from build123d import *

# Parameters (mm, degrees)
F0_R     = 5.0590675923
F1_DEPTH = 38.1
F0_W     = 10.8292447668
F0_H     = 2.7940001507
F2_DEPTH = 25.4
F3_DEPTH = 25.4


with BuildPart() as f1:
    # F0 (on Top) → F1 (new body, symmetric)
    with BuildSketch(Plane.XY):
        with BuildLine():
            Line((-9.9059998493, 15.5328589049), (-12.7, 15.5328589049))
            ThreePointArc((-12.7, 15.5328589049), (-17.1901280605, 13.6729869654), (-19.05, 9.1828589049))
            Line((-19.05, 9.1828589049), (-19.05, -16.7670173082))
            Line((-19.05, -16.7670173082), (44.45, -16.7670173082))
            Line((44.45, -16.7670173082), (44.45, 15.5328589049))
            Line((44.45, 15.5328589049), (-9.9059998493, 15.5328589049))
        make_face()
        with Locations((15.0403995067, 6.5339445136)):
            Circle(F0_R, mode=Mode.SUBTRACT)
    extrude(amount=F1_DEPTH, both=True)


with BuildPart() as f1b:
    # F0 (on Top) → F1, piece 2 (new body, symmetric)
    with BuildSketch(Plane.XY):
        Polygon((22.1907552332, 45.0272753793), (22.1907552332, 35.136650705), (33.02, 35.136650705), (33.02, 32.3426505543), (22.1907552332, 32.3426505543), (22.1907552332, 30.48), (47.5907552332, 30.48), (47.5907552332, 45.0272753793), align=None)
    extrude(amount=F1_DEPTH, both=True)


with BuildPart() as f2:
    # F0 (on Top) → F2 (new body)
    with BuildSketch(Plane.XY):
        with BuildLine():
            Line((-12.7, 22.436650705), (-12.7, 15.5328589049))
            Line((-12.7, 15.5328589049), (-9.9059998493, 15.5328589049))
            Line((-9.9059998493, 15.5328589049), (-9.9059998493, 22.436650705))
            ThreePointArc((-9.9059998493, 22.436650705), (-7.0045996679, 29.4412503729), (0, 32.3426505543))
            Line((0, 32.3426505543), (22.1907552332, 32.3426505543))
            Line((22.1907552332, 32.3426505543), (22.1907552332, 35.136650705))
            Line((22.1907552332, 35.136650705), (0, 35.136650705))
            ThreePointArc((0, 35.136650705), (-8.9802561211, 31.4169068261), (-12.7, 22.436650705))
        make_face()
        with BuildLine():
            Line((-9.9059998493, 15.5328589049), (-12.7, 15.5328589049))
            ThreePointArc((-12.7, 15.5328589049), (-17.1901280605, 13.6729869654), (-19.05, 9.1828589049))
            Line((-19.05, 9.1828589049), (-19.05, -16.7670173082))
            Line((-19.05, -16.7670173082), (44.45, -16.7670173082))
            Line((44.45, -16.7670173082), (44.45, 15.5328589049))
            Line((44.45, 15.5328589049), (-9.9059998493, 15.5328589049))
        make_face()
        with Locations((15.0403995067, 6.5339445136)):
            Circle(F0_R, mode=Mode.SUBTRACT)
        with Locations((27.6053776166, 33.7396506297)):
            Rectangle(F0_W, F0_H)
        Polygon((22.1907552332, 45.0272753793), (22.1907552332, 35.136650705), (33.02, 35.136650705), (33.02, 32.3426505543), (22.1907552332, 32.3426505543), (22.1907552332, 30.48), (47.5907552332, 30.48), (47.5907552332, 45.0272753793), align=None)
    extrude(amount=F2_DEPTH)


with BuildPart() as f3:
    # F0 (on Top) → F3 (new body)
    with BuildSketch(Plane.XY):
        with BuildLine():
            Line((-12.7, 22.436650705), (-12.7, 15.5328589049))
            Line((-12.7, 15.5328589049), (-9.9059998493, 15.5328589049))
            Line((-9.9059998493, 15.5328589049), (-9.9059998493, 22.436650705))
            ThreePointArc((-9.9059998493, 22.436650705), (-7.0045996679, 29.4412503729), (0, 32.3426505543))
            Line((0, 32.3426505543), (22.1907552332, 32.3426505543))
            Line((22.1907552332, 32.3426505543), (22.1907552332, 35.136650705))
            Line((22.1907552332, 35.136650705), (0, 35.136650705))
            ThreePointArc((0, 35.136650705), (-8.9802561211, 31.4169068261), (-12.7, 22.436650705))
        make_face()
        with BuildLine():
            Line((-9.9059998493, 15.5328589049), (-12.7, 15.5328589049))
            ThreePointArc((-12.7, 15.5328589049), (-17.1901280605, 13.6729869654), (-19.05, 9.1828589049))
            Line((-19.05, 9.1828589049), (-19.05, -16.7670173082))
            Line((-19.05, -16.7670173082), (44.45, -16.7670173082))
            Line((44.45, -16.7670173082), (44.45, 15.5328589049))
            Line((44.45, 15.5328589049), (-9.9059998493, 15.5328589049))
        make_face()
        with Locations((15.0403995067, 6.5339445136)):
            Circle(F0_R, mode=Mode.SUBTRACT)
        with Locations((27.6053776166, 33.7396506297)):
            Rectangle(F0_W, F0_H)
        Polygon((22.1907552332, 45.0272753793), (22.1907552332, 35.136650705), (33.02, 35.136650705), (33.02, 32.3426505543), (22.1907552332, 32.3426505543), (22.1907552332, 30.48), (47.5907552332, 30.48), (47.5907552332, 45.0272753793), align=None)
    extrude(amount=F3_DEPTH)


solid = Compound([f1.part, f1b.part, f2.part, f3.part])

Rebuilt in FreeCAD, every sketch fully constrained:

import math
import FreeCAD as App
import Part
import Sketcher

V = App.Vector
Q = App.Units.Quantity


def add_polygon(sketch, points):
    """Adds a closed chain of lines whose ends are joined by coincident constraints."""
    first, n = sketch.GeometryCount, len(points)
    for a, b in zip(points, points[1:] + points[:1]):
        sketch.addGeometry(Part.LineSegment(App.Vector(*a, 0), App.Vector(*b, 0)), False)
    for i in range(n):
        sketch.addConstraint(Sketcher.Constraint("Coincident", first + i, 2, first + (i + 1) % n, 1))

doc = App.newDocument("Part")
body = doc.addObject("PartDesign::Body", "Body")

# Sketch on XY plane
sketch1 = doc.addObject("Sketcher::SketchObject", "Sketch")
body.addObject(sketch1)
sketch1.AttachmentSupport = (doc.XY_Plane, [""])
sketch1.MapMode = "FlatFace"
sketch1.addGeometry(Part.ArcOfCircle(Part.Circle(V(-13, 9, 0), V(0, 0, 1), 6), math.radians(90), math.radians(180)), False)
sketch1.addGeometry(Part.LineSegment(V(-19, 9, 0), V(-19, -17, 0)), False)
sketch1.addGeometry(Part.LineSegment(V(-19, -17, 0), V(44, -17, 0)), False)
sketch1.addGeometry(Part.LineSegment(V(44, -17, 0), V(44, 16, 0)), False)
sketch1.addGeometry(Part.LineSegment(V(44, 16, 0), V(-13, 16, 0)), False)
sketch1.addGeometry(Part.Circle(V(15, 7, 0), V(0, 0, 1), 5), False)
sketch1.addConstraint(Sketcher.Constraint("Tangent", 0, 2, 1, 1))
sketch1.addConstraint(Sketcher.Constraint("Coincident", 1, 2, 2, 1))
sketch1.addConstraint(Sketcher.Constraint("Coincident", 2, 2, 3, 1))
sketch1.addConstraint(Sketcher.Constraint("Coincident", 3, 2, 4, 1))
sketch1.addConstraint(Sketcher.Constraint("Tangent", 4, 2, 0, 1))
sketch1.addConstraint(Sketcher.Constraint("Vertical", 1))
sketch1.addConstraint(Sketcher.Constraint("Horizontal", 2))
sketch1.addConstraint(Sketcher.Constraint("Vertical", 3))
sketch1.addConstraint(Sketcher.Constraint("Horizontal", 4))
sketch1.addConstraint(Sketcher.Constraint("Radius", 0, Q("0.25 in")))
sketch1.addConstraint(Sketcher.Constraint("DistanceX", 2, 1, 2, 2, Q("2.5 in")))
sketch1.addConstraint(Sketcher.Constraint("DistanceX", 0, 3, -1, 1, Q("0.5 in")))
sketch1.addConstraint(Sketcher.Constraint("Diameter", 5, Q("10.118135 mm")))
sketch1.addConstraint(Sketcher.Constraint("DistanceX", -1, 1, 5, 3, Q("15.0404 mm")))
sketch1.addConstraint(Sketcher.Constraint("DistanceY", 1, 2, 1, 1, Q("25.949876 mm")))
sketch1.addConstraint(Sketcher.Constraint("DistanceY", -1, 1, 0, 3, Q("9.182859 mm")))
sketch1.addConstraint(Sketcher.Constraint("DistanceY", 1, 2, 5, 3, Q("23.300962 mm")))
pad1 = doc.addObject("PartDesign::Pad", "Pad")
body.addObject(pad1)
pad1.Profile = sketch1
pad1.Length = Q("3 in")
pad1.Midplane = True
body2 = doc.addObject("PartDesign::Body", "Body001")

# Sketch on XY plane
sketch2 = doc.addObject("Sketcher::SketchObject", "Sketch001")
body2.addObject(sketch2)
sketch2.AttachmentSupport = (doc.getObject("XY_Plane001"), [""])
sketch2.MapMode = "FlatFace"
add_polygon(sketch2, [(22.2, 45), (22.2, 35.1), (33, 35.1), (33, 32.3), (22.2, 32.3), (22.2, 30.5), (47.6, 30.5), (47.6, 45)])  # lines 0-7
sketch2.addConstraint(Sketcher.Constraint("Vertical", 0))
sketch2.addConstraint(Sketcher.Constraint("Horizontal", 1))
sketch2.addConstraint(Sketcher.Constraint("Vertical", 2))
sketch2.addConstraint(Sketcher.Constraint("Horizontal", 3))
sketch2.addConstraint(Sketcher.Constraint("Vertical", 4))
sketch2.addConstraint(Sketcher.Constraint("Horizontal", 5))
sketch2.addConstraint(Sketcher.Constraint("Vertical", 6))
sketch2.addConstraint(Sketcher.Constraint("Horizontal", 7))
sketch2.addConstraint(Sketcher.Constraint("Vertical", 0, 2, 3, 2))
sketch2.addConstraint(Sketcher.Constraint("DistanceX", 5, 1, 5, 2, Q("1 in")))
sketch2.addConstraint(Sketcher.Constraint("DistanceY", 2, 2, 2, 1, Q("0.11 in")))
sketch2.addConstraint(Sketcher.Constraint("DistanceX", -1, 1, 1, 2, Q("1.3 in")))
sketch2.addConstraint(Sketcher.Constraint("DistanceY", -1, 1, 4, 2, Q("1.2 in")))
sketch2.addConstraint(Sketcher.Constraint("DistanceY", 4, 2, 4, 1, Q("1.862651 mm")))
sketch2.addConstraint(Sketcher.Constraint("DistanceX", 1, 1, 1, 2, Q("10.829245 mm")))
sketch2.addConstraint(Sketcher.Constraint("DistanceY", 0, 2, 0, 1, Q("9.890625 mm")))
pad2 = doc.addObject("PartDesign::Pad", "Pad001")
body2.addObject(pad2)
pad2.Profile = sketch2
pad2.Length = Q("3 in")
pad2.Midplane = True
body3 = doc.addObject("PartDesign::Body", "Body002")

# Sketch on XY plane
sketch3 = doc.addObject("Sketcher::SketchObject", "Sketch002")
body3.addObject(sketch3)
sketch3.AttachmentSupport = (doc.getObject("XY_Plane002"), [""])
sketch3.MapMode = "FlatFace"
sketch3.addGeometry(Part.LineSegment(V(-12.7, 22.4, 0), V(-12.7, 15.5, 0)), False)
sketch3.addGeometry(Part.ArcOfCircle(Part.Circle(V(-12.7, 9.2, 0), V(0, 0, 1), 6.3), math.radians(90), math.radians(180)), False)
sketch3.addGeometry(Part.LineSegment(V(-19.1, 9.2, 0), V(-19.1, -16.8, 0)), False)
sketch3.addGeometry(Part.LineSegment(V(-19.1, -16.8, 0), V(44.5, -16.8, 0)), False)
sketch3.addGeometry(Part.LineSegment(V(44.5, -16.8, 0), V(44.5, 15.5, 0)), False)
sketch3.addGeometry(Part.LineSegment(V(44.5, 15.5, 0), V(-9.9, 15.5, 0)), False)
sketch3.addGeometry(Part.LineSegment(V(-9.9, 15.5, 0), V(-9.9, 22.4, 0)), False)
sketch3.addGeometry(Part.ArcOfCircle(Part.Circle(V(0, 22.4, 0), V(0, 0, 1), 9.9), math.radians(90), math.radians(180)), False)
sketch3.addGeometry(Part.LineSegment(V(0, 32.3, 0), V(22.2, 32.3, 0)), False)
sketch3.addGeometry(Part.LineSegment(V(22.2, 32.3, 0), V(22.2, 30.5, 0)), False)
sketch3.addGeometry(Part.LineSegment(V(22.2, 30.5, 0), V(47.6, 30.5, 0)), False)
sketch3.addGeometry(Part.LineSegment(V(47.6, 30.5, 0), V(47.6, 45, 0)), False)
sketch3.addGeometry(Part.LineSegment(V(47.6, 45, 0), V(22.2, 45, 0)), False)
sketch3.addGeometry(Part.LineSegment(V(22.2, 45, 0), V(22.2, 35.1, 0)), False)
sketch3.addGeometry(Part.LineSegment(V(22.2, 35.1, 0), V(0, 35.1, 0)), False)
sketch3.addGeometry(Part.ArcOfCircle(Part.Circle(V(0, 22.4, 0), V(0, 0, 1), 12.7), math.radians(90), math.radians(180)), False)
sketch3.addGeometry(Part.Circle(V(15, 6.5, 0), V(0, 0, 1), 5.1), False)
sketch3.addConstraint(Sketcher.Constraint("Coincident", 0, 2, 1, 1))
sketch3.addConstraint(Sketcher.Constraint("Tangent", 1, 2, 2, 1))
sketch3.addConstraint(Sketcher.Constraint("Coincident", 2, 2, 3, 1))
sketch3.addConstraint(Sketcher.Constraint("Coincident", 3, 2, 4, 1))
sketch3.addConstraint(Sketcher.Constraint("Coincident", 4, 2, 5, 1))
sketch3.addConstraint(Sketcher.Constraint("Coincident", 5, 2, 6, 1))
sketch3.addConstraint(Sketcher.Constraint("Tangent", 6, 2, 7, 2))
sketch3.addConstraint(Sketcher.Constraint("Tangent", 7, 1, 8, 1))
sketch3.addConstraint(Sketcher.Constraint("Coincident", 8, 2, 9, 1))
sketch3.addConstraint(Sketcher.Constraint("Coincident", 9, 2, 10, 1))
sketch3.addConstraint(Sketcher.Constraint("Coincident", 10, 2, 11, 1))
sketch3.addConstraint(Sketcher.Constraint("Coincident", 11, 2, 12, 1))
sketch3.addConstraint(Sketcher.Constraint("Coincident", 12, 2, 13, 1))
sketch3.addConstraint(Sketcher.Constraint("Coincident", 13, 2, 14, 1))
sketch3.addConstraint(Sketcher.Constraint("Tangent", 14, 2, 15, 1))
sketch3.addConstraint(Sketcher.Constraint("Tangent", 15, 2, 0, 1))
sketch3.addConstraint(Sketcher.Constraint("Vertical", 0))
sketch3.addConstraint(Sketcher.Constraint("Vertical", 2))
sketch3.addConstraint(Sketcher.Constraint("Horizontal", 3))
sketch3.addConstraint(Sketcher.Constraint("Vertical", 4))
sketch3.addConstraint(Sketcher.Constraint("Horizontal", 5))
sketch3.addConstraint(Sketcher.Constraint("Vertical", 6))
sketch3.addConstraint(Sketcher.Constraint("Horizontal", 8))
sketch3.addConstraint(Sketcher.Constraint("Vertical", 9))
sketch3.addConstraint(Sketcher.Constraint("Horizontal", 10))
sketch3.addConstraint(Sketcher.Constraint("Vertical", 11))
sketch3.addConstraint(Sketcher.Constraint("Horizontal", 12))
sketch3.addConstraint(Sketcher.Constraint("Vertical", 13))
sketch3.addConstraint(Sketcher.Constraint("Horizontal", 14))
sketch3.addConstraint(Sketcher.Constraint("Coincident", 15, 3, 7, 3))
sketch3.addConstraint(Sketcher.Constraint("PointOnObject", 7, 3, -2))
sketch3.addConstraint(Sketcher.Constraint("Horizontal", 0, 2, 4, 2))
sketch3.addConstraint(Sketcher.Constraint("Vertical", 1, 3, 0, 2))
sketch3.addConstraint(Sketcher.Constraint("Vertical", 9, 2, 12, 2))
sketch3.addConstraint(Sketcher.Constraint("Radius", 15, Q("0.5 in")))
sketch3.addConstraint(Sketcher.Constraint("DistanceX", 10, 1, 10, 2, Q("1 in")))
sketch3.addConstraint(Sketcher.Constraint("Radius", 1, Q("0.25 in")))
sketch3.addConstraint(Sketcher.Constraint("Radius", 7, Q("0.39 in")))
sketch3.addConstraint(Sketcher.Constraint("DistanceX", 3, 1, 3, 2, Q("2.5 in")))
sketch3.addConstraint(Sketcher.Constraint("DistanceY", -1, 1, 9, 2, Q("1.2 in")))
sketch3.addConstraint(Sketcher.Constraint("Diameter", 16, Q("10.118135 mm")))
sketch3.addConstraint(Sketcher.Constraint("DistanceY", 0, 2, 0, 1, Q("6.903792 mm")))
sketch3.addConstraint(Sketcher.Constraint("DistanceY", 9, 2, 9, 1, Q("1.862651 mm")))
sketch3.addConstraint(Sketcher.Constraint("DistanceX", -1, 1, 16, 3, Q("15.0404 mm")))
sketch3.addConstraint(Sketcher.Constraint("DistanceX", 8, 1, 8, 2, Q("22.190755 mm")))
sketch3.addConstraint(Sketcher.Constraint("DistanceY", 2, 2, 2, 1, Q("25.949876 mm")))
sketch3.addConstraint(Sketcher.Constraint("DistanceY", 11, 1, 11, 2, Q("14.547275 mm")))
sketch3.addConstraint(Sketcher.Constraint("DistanceY", 2, 2, 16, 3, Q("23.300962 mm")))
pad3 = doc.addObject("PartDesign::Pad", "Pad002")
body3.addObject(pad3)
pad3.Profile = sketch3
pad3.Length = Q("1 in")
body4 = doc.addObject("PartDesign::Body", "Body003")

# Sketch on XY plane
sketch4 = doc.addObject("Sketcher::SketchObject", "Sketch003")
body4.addObject(sketch4)
sketch4.AttachmentSupport = (doc.getObject("XY_Plane003"), [""])
sketch4.MapMode = "FlatFace"
sketch4.addGeometry(Part.LineSegment(V(-12.7, 22.4, 0), V(-12.7, 15.5, 0)), False)
sketch4.addGeometry(Part.ArcOfCircle(Part.Circle(V(-12.7, 9.2, 0), V(0, 0, 1), 6.3), math.radians(90), math.radians(180)), False)
sketch4.addGeometry(Part.LineSegment(V(-19.1, 9.2, 0), V(-19.1, -16.8, 0)), False)
sketch4.addGeometry(Part.LineSegment(V(-19.1, -16.8, 0), V(44.5, -16.8, 0)), False)
sketch4.addGeometry(Part.LineSegment(V(44.5, -16.8, 0), V(44.5, 15.5, 0)), False)
sketch4.addGeometry(Part.LineSegment(V(44.5, 15.5, 0), V(-9.9, 15.5, 0)), False)
sketch4.addGeometry(Part.LineSegment(V(-9.9, 15.5, 0), V(-9.9, 22.4, 0)), False)
sketch4.addGeometry(Part.ArcOfCircle(Part.Circle(V(0, 22.4, 0), V(0, 0, 1), 9.9), math.radians(90), math.radians(180)), False)
sketch4.addGeometry(Part.LineSegment(V(0, 32.3, 0), V(22.2, 32.3, 0)), False)
sketch4.addGeometry(Part.LineSegment(V(22.2, 32.3, 0), V(22.2, 30.5, 0)), False)
sketch4.addGeometry(Part.LineSegment(V(22.2, 30.5, 0), V(47.6, 30.5, 0)), False)
sketch4.addGeometry(Part.LineSegment(V(47.6, 30.5, 0), V(47.6, 45, 0)), False)
sketch4.addGeometry(Part.LineSegment(V(47.6, 45, 0), V(22.2, 45, 0)), False)
sketch4.addGeometry(Part.LineSegment(V(22.2, 45, 0), V(22.2, 35.1, 0)), False)
sketch4.addGeometry(Part.LineSegment(V(22.2, 35.1, 0), V(0, 35.1, 0)), False)
sketch4.addGeometry(Part.ArcOfCircle(Part.Circle(V(0, 22.4, 0), V(0, 0, 1), 12.7), math.radians(90), math.radians(180)), False)
sketch4.addGeometry(Part.Circle(V(15, 6.5, 0), V(0, 0, 1), 5.1), False)
sketch4.addConstraint(Sketcher.Constraint("Coincident", 0, 2, 1, 1))
sketch4.addConstraint(Sketcher.Constraint("Tangent", 1, 2, 2, 1))
sketch4.addConstraint(Sketcher.Constraint("Coincident", 2, 2, 3, 1))
sketch4.addConstraint(Sketcher.Constraint("Coincident", 3, 2, 4, 1))
sketch4.addConstraint(Sketcher.Constraint("Coincident", 4, 2, 5, 1))
sketch4.addConstraint(Sketcher.Constraint("Coincident", 5, 2, 6, 1))
sketch4.addConstraint(Sketcher.Constraint("Tangent", 6, 2, 7, 2))
sketch4.addConstraint(Sketcher.Constraint("Tangent", 7, 1, 8, 1))
sketch4.addConstraint(Sketcher.Constraint("Coincident", 8, 2, 9, 1))
sketch4.addConstraint(Sketcher.Constraint("Coincident", 9, 2, 10, 1))
sketch4.addConstraint(Sketcher.Constraint("Coincident", 10, 2, 11, 1))
sketch4.addConstraint(Sketcher.Constraint("Coincident", 11, 2, 12, 1))
sketch4.addConstraint(Sketcher.Constraint("Coincident", 12, 2, 13, 1))
sketch4.addConstraint(Sketcher.Constraint("Coincident", 13, 2, 14, 1))
sketch4.addConstraint(Sketcher.Constraint("Tangent", 14, 2, 15, 1))
sketch4.addConstraint(Sketcher.Constraint("Tangent", 15, 2, 0, 1))
sketch4.addConstraint(Sketcher.Constraint("Vertical", 0))
sketch4.addConstraint(Sketcher.Constraint("Vertical", 2))
sketch4.addConstraint(Sketcher.Constraint("Horizontal", 3))
sketch4.addConstraint(Sketcher.Constraint("Vertical", 4))
sketch4.addConstraint(Sketcher.Constraint("Horizontal", 5))
sketch4.addConstraint(Sketcher.Constraint("Vertical", 6))
sketch4.addConstraint(Sketcher.Constraint("Horizontal", 8))
sketch4.addConstraint(Sketcher.Constraint("Vertical", 9))
sketch4.addConstraint(Sketcher.Constraint("Horizontal", 10))
sketch4.addConstraint(Sketcher.Constraint("Vertical", 11))
sketch4.addConstraint(Sketcher.Constraint("Horizontal", 12))
sketch4.addConstraint(Sketcher.Constraint("Vertical", 13))
sketch4.addConstraint(Sketcher.Constraint("Horizontal", 14))
sketch4.addConstraint(Sketcher.Constraint("Coincident", 15, 3, 7, 3))
sketch4.addConstraint(Sketcher.Constraint("PointOnObject", 7, 3, -2))
sketch4.addConstraint(Sketcher.Constraint("Horizontal", 0, 2, 4, 2))
sketch4.addConstraint(Sketcher.Constraint("Vertical", 1, 3, 0, 2))
sketch4.addConstraint(Sketcher.Constraint("Vertical", 9, 2, 12, 2))
sketch4.addConstraint(Sketcher.Constraint("Radius", 15, Q("0.5 in")))
sketch4.addConstraint(Sketcher.Constraint("DistanceX", 10, 1, 10, 2, Q("1 in")))
sketch4.addConstraint(Sketcher.Constraint("Radius", 1, Q("0.25 in")))
sketch4.addConstraint(Sketcher.Constraint("Radius", 7, Q("0.39 in")))
sketch4.addConstraint(Sketcher.Constraint("DistanceX", 3, 1, 3, 2, Q("2.5 in")))
sketch4.addConstraint(Sketcher.Constraint("DistanceY", -1, 1, 9, 2, Q("1.2 in")))
sketch4.addConstraint(Sketcher.Constraint("Diameter", 16, Q("10.118135 mm")))
sketch4.addConstraint(Sketcher.Constraint("DistanceY", 0, 2, 0, 1, Q("6.903792 mm")))
sketch4.addConstraint(Sketcher.Constraint("DistanceY", 9, 2, 9, 1, Q("1.862651 mm")))
sketch4.addConstraint(Sketcher.Constraint("DistanceX", -1, 1, 16, 3, Q("15.0404 mm")))
sketch4.addConstraint(Sketcher.Constraint("DistanceX", 8, 1, 8, 2, Q("22.190755 mm")))
sketch4.addConstraint(Sketcher.Constraint("DistanceY", 2, 2, 2, 1, Q("25.949876 mm")))
sketch4.addConstraint(Sketcher.Constraint("DistanceY", 11, 1, 11, 2, Q("14.547275 mm")))
sketch4.addConstraint(Sketcher.Constraint("DistanceY", 2, 2, 16, 3, Q("23.300962 mm")))
pad4 = doc.addObject("PartDesign::Pad", "Pad003")
body4.addObject(pad4)
pad4.Profile = sketch4
pad4.Length = Q("1 in")

doc.recompute()
